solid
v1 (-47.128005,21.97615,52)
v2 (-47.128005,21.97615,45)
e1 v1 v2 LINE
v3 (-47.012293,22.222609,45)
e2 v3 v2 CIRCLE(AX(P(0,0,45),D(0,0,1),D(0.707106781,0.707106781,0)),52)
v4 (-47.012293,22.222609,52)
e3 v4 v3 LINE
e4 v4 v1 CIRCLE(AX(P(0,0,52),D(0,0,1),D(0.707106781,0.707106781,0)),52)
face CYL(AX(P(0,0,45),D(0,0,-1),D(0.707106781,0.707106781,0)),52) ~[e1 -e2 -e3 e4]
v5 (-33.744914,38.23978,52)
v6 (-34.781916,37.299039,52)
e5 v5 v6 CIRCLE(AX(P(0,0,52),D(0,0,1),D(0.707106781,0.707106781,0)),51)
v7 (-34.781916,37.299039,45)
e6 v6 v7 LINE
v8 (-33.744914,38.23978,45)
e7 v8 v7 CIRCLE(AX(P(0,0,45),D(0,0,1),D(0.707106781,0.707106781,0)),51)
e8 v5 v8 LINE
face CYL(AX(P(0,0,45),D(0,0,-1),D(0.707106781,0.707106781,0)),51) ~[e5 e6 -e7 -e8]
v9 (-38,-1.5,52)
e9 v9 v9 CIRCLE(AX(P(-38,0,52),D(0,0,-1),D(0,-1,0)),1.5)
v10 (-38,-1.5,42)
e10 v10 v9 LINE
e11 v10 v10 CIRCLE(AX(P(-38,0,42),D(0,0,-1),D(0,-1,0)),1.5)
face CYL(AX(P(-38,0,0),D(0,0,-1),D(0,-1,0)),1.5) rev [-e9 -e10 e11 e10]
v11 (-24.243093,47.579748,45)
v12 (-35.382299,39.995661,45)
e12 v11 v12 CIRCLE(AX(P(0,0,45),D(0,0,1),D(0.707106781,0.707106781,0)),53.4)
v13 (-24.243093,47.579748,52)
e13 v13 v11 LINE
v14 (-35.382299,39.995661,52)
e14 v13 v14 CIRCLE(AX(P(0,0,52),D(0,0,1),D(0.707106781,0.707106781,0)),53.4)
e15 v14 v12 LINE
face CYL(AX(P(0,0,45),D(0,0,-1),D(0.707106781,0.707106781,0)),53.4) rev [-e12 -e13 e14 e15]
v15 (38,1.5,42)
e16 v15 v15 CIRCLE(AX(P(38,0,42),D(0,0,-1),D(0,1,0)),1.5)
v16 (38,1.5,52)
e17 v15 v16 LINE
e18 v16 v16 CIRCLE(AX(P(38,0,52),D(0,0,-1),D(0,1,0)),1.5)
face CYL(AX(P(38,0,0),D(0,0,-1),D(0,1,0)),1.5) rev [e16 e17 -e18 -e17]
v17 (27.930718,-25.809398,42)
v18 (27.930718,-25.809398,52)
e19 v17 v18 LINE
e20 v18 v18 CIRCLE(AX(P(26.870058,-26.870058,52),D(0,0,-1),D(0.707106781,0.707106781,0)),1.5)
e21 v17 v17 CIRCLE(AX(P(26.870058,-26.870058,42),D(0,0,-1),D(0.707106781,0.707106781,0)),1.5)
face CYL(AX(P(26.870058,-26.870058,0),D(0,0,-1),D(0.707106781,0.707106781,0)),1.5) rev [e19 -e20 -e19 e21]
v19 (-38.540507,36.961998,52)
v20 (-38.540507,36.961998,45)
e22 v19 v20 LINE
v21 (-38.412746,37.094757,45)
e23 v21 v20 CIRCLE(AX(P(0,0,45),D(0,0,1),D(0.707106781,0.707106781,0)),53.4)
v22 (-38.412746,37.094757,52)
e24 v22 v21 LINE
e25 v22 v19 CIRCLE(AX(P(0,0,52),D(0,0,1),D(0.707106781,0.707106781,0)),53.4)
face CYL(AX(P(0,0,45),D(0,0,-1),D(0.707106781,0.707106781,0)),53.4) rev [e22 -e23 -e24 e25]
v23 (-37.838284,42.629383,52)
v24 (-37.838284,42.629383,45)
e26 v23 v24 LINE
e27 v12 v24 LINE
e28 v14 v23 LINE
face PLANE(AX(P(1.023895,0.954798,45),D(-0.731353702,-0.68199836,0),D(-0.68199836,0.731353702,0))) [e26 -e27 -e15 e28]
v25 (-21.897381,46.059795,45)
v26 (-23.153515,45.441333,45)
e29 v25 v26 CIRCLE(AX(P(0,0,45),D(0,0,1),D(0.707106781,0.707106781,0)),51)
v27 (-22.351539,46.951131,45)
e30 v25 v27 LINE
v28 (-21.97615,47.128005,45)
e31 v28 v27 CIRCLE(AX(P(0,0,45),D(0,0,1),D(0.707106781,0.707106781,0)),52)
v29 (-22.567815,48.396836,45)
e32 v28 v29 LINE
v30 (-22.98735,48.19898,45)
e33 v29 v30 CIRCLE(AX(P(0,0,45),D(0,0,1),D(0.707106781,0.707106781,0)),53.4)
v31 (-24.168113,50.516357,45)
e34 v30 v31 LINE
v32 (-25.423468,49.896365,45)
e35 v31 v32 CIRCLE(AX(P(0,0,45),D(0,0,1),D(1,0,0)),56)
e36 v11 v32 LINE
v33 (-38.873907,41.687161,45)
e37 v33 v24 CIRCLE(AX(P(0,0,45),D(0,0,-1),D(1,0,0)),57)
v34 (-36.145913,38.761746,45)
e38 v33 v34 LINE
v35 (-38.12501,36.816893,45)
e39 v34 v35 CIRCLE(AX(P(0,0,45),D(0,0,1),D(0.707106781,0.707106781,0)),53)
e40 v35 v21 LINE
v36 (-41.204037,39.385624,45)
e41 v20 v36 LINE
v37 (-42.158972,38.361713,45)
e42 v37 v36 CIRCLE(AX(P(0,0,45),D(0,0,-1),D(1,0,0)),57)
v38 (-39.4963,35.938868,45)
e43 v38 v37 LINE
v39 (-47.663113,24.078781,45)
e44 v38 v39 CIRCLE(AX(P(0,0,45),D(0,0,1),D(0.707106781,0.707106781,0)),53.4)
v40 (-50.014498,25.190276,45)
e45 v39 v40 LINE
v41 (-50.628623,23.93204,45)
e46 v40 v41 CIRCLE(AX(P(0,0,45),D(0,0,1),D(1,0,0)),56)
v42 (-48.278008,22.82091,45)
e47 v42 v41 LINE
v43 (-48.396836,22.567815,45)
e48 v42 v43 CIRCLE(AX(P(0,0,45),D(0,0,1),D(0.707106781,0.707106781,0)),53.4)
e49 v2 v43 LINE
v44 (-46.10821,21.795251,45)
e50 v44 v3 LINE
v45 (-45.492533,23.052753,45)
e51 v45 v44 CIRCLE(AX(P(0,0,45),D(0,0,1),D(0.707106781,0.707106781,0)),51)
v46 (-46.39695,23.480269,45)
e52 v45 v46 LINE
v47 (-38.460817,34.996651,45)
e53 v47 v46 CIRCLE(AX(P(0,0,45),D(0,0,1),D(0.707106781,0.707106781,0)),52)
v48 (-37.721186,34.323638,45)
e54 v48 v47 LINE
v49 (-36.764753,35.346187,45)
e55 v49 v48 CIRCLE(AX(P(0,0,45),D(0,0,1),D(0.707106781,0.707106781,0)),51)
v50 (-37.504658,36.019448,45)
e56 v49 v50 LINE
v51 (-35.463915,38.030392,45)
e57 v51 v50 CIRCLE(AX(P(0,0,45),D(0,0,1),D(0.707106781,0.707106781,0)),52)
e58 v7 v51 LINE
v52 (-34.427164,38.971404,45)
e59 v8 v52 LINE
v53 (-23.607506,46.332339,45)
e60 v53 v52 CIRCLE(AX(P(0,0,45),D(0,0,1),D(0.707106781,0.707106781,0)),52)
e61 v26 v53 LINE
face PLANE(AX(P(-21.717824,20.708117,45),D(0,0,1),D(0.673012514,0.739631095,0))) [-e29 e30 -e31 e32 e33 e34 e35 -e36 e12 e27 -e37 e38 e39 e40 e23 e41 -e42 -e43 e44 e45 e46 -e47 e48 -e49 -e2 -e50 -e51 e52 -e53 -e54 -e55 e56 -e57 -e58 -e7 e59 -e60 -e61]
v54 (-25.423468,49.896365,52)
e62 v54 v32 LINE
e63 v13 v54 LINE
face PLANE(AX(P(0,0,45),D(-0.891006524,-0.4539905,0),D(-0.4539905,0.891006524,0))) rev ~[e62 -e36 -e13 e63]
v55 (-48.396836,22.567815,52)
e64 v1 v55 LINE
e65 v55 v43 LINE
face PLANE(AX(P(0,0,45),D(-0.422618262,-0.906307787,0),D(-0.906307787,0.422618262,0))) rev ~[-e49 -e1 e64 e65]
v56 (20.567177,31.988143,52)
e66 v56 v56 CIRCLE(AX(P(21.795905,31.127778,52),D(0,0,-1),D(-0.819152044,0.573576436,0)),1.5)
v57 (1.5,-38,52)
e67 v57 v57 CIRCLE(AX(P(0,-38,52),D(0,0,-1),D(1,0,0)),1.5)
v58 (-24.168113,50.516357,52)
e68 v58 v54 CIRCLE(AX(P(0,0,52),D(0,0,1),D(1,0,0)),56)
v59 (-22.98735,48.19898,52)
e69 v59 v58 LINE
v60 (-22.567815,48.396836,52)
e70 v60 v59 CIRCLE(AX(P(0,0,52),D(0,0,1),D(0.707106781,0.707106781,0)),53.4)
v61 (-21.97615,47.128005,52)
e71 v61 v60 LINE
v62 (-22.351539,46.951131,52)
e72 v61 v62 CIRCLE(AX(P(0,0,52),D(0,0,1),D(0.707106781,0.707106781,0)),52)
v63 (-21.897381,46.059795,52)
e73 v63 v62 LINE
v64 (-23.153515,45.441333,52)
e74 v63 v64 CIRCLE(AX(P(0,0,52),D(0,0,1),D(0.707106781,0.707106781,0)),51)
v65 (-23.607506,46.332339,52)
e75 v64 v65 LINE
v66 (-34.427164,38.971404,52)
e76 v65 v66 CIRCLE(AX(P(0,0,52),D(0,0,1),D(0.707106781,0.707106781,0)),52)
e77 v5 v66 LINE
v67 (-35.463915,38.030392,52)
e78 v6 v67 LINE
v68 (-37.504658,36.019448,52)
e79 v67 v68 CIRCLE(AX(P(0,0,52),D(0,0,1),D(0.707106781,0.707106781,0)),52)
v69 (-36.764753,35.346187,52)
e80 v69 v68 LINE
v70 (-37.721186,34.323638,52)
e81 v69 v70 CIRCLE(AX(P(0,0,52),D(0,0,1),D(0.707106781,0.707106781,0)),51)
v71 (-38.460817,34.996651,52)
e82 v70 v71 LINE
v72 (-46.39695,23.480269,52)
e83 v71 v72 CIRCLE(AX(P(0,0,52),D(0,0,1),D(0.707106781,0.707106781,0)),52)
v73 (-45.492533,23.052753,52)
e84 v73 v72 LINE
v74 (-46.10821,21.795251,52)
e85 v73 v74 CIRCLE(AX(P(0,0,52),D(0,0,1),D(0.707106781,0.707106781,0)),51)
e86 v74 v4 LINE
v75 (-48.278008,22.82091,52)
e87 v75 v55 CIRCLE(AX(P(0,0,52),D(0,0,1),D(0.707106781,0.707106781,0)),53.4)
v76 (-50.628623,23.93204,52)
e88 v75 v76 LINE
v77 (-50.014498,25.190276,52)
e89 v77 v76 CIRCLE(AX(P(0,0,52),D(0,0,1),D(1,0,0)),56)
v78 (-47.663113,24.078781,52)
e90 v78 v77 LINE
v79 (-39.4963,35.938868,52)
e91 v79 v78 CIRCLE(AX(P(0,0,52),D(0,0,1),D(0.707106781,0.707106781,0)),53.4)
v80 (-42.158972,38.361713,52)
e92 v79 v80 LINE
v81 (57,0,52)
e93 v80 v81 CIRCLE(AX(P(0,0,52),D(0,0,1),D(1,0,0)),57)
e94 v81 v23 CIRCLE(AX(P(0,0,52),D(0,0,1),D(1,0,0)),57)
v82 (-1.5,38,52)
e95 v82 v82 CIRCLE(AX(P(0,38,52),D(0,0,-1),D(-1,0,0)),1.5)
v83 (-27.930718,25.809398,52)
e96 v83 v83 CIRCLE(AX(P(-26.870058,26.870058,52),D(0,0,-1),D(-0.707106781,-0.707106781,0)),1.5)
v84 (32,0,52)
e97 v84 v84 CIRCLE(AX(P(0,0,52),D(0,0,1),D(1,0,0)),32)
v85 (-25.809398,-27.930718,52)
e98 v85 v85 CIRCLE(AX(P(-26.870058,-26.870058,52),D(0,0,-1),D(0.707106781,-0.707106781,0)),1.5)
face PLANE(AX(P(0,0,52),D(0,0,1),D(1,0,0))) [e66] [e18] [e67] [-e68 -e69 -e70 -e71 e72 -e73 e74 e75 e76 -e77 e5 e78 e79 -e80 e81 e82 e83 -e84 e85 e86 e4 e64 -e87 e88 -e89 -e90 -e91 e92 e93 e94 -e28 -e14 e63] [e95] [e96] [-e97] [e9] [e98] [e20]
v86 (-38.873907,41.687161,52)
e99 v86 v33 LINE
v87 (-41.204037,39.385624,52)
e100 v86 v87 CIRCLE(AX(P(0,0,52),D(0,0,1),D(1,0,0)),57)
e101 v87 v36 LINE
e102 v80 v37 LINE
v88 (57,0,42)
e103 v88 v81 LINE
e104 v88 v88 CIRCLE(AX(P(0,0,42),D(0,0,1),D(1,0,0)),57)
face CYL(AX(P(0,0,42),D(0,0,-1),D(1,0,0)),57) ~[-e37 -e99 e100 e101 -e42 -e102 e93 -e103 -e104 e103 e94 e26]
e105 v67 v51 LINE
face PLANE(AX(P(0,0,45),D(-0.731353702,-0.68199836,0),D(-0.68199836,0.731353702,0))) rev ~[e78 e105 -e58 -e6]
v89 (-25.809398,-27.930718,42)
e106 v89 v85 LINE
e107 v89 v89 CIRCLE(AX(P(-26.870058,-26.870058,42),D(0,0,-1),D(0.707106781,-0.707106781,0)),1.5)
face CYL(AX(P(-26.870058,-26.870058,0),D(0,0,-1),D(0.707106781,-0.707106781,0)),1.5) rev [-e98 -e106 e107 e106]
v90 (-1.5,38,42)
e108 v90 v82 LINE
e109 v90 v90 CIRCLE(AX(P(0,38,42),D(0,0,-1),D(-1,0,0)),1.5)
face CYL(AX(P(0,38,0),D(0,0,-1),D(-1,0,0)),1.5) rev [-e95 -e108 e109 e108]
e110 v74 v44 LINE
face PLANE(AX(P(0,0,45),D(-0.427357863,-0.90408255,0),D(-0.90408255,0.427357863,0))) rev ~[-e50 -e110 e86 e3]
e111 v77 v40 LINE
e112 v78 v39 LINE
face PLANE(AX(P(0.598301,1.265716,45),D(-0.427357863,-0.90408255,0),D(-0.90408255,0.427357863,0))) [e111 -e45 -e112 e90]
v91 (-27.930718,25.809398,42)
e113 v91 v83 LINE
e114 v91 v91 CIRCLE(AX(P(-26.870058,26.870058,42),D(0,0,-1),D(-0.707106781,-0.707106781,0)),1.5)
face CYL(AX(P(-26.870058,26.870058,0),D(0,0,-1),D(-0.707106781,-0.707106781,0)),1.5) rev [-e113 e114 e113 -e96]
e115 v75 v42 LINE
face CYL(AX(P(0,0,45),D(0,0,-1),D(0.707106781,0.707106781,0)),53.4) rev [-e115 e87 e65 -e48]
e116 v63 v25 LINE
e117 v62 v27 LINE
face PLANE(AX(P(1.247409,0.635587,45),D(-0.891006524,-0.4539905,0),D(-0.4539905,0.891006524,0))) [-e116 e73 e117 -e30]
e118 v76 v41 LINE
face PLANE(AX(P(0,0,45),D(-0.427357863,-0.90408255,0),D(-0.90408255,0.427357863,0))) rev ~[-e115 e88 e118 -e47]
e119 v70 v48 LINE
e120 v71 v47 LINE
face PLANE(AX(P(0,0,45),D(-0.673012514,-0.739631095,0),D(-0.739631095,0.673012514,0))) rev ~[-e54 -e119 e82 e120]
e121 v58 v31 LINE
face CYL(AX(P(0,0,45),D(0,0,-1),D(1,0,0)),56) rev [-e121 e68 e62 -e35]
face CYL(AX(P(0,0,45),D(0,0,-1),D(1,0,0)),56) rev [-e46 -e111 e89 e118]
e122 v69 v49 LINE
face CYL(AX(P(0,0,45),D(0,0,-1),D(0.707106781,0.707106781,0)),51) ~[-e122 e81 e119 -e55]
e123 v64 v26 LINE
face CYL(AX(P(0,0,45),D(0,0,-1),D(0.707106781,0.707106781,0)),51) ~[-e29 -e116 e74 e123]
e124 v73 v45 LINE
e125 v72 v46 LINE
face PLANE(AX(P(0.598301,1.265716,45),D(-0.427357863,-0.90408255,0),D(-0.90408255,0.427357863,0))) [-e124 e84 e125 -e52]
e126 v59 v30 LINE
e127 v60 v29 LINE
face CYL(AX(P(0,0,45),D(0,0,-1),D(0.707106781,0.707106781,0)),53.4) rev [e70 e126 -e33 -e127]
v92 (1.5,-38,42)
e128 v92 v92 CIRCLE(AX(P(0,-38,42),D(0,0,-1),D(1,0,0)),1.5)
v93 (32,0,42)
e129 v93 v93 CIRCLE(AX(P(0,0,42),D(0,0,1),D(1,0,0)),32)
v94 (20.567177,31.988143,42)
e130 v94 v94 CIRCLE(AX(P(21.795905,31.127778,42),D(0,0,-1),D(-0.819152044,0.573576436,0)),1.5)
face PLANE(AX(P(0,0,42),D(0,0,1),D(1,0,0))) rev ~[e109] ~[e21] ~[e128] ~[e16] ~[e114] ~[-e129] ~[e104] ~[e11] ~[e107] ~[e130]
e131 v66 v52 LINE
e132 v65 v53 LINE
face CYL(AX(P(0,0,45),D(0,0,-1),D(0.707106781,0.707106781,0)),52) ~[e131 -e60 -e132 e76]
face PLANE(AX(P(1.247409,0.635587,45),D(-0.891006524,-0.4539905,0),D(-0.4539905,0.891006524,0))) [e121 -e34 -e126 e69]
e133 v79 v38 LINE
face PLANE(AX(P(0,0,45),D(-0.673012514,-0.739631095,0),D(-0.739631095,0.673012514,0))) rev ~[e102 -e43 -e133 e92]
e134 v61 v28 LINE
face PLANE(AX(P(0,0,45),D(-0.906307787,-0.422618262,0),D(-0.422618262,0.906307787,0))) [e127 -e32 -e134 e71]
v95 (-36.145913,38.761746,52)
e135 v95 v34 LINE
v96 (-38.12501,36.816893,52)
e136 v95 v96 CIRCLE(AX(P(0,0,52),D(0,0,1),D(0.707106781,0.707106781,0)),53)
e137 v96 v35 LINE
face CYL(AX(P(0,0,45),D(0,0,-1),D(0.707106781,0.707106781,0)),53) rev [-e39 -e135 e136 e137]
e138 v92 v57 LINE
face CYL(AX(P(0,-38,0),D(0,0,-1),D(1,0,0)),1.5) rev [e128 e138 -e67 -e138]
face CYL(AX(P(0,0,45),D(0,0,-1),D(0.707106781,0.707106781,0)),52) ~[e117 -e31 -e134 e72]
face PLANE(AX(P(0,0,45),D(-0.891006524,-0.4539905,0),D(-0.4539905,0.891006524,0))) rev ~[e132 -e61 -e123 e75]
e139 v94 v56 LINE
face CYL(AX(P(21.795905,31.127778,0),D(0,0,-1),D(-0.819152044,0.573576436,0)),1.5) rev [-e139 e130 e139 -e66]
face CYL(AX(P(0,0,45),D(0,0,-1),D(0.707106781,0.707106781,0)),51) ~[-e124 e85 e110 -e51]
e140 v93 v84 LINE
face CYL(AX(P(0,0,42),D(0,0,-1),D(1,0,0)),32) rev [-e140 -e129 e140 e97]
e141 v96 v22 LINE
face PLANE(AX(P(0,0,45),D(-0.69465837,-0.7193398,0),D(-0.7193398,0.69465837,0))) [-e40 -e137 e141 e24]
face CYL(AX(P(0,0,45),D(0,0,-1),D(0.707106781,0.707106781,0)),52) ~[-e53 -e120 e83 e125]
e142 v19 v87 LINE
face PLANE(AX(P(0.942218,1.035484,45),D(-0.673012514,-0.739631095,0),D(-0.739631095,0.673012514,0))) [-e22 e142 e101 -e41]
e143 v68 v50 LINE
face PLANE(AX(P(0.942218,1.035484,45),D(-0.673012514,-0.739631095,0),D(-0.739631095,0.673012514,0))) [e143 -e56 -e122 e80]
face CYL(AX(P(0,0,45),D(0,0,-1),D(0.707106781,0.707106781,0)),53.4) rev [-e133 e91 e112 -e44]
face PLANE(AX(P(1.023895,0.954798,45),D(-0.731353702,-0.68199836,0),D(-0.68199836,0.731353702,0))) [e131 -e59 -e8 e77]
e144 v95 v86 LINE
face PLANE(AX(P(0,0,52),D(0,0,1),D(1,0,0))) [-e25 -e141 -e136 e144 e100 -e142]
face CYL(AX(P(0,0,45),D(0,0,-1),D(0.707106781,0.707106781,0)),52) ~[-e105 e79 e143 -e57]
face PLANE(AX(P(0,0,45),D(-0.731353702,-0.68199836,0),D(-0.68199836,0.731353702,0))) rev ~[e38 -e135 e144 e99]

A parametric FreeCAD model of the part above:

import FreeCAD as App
import Part
import Sketcher

V = App.Vector


def add_polygon(sketch, points):
    """Adds a closed chain of lines whose ends are joined by coincident constraints."""
    first, n = sketch.GeometryCount, len(points)
    for a, b in zip(points, points[1:] + points[:1]):
        sketch.addGeometry(Part.LineSegment(App.Vector(*a, 0), App.Vector(*b, 0)), False)
    for i in range(n):
        sketch.addConstraint(Sketcher.Constraint("Coincident", first + i, 2, first + (i + 1) % n, 1))

doc = App.newDocument("Part")
body = doc.addObject("PartDesign::Body", "Body")

sketch1 = body.newObject("Sketcher::SketchObject", "Sketch")
sketch1.AttachmentSupport = (doc.getObject("XY_Plane"), [""])
sketch1.MapMode = "FlatFace"
sketch1.AttachmentOffset = App.Placement(V(0, 0, 45), App.Rotation())
sketch1.addGeometry(Part.Circle(V(0, 0, 0), V(0, 0, 1), 56), False)
sketch1.addConstraint([
    Sketcher.Constraint("Coincident", 0, 3, -1, 1),
    Sketcher.Constraint("Diameter", 0, 112.0),
])
pad1 = body.newObject("PartDesign::Pad", "Pad")
pad1.Profile = sketch1
pad1.Length = 7
body2 = doc.addObject("PartDesign::Body", "Body001")

sketch2 = body2.newObject("Sketcher::SketchObject", "Sketch001")
sketch2.AttachmentSupport = (doc.getObject("XY_Plane001"), [""])
sketch2.MapMode = "FlatFace"
sketch2.AttachmentOffset = App.Placement(V(0, 0, -22), App.Rotation())
sketch2.addGeometry(Part.Circle(V(0, 0, 0), V(0, 0, 1), 51), False)
sketch2.addConstraint([
    Sketcher.Constraint("Coincident", 0, 3, -1, 1),
    Sketcher.Constraint("Diameter", 0, 102.0),
])
pad2 = body2.newObject("PartDesign::Pad", "Pad001")
pad2.Profile = sketch2
pad2.Length = 7
body3 = doc.addObject("PartDesign::Body", "Body002")

sketch3 = body3.newObject("Sketcher::SketchObject", "Sketch002")
sketch3.AttachmentSupport = (doc.getObject("XY_Plane002"), [""])
sketch3.MapMode = "FlatFace"
add_polygon(sketch3, [(0, 60), (0, 0), (1.4, 0), (1.4, 60)])
sketch3.addConstraint([
    Sketcher.Constraint("Vertical", 0),
    Sketcher.Constraint("Horizontal", 1),
    Sketcher.Constraint("Vertical", 2),
    Sketcher.Constraint("Horizontal", 3),
    Sketcher.Constraint("Coincident", 0, 2, -1, 1),
    Sketcher.Constraint("DistanceY", 0, 2, 0, 1, 60.0),
    Sketcher.Constraint("DistanceX", 1, 1, 1, 2, 1.4),
])
pad3 = body3.newObject("PartDesign::Pad", "Pad002")
pad3.Profile = sketch3
pad3.Length = 7
body4 = doc.addObject("PartDesign::Body", "Body003")
doc.recompute()

body3.Placement = App.Placement(V(0, 0, -22), App.Rotation(V(0, 0, 1), 19.7))
boolean = body4.newObject("PartDesign::Boolean", "Boolean")
boolean.Type = "Fuse"
boolean.addObjects([body3])
body5 = doc.addObject("PartDesign::Body", "Body004")

sketch4 = body5.newObject("Sketcher::SketchObject", "Sketch003")
sketch4.AttachmentSupport = (doc.getObject("XY_Plane004"), [""])
sketch4.MapMode = "FlatFace"
add_polygon(sketch4, [(0, 60), (0, 0), (1.4, 0), (1.4, 60)])
sketch4.addConstraint([
    Sketcher.Constraint("Vertical", 0),
    Sketcher.Constraint("Horizontal", 1),
    Sketcher.Constraint("Vertical", 2),
    Sketcher.Constraint("Horizontal", 3),
    Sketcher.Constraint("Coincident", 0, 2, -1, 1),
    Sketcher.Constraint("DistanceY", 0, 2, 0, 1, 60.0),
    Sketcher.Constraint("DistanceX", 1, 1, 1, 2, 1.4),
])
pad4 = body5.newObject("PartDesign::Pad", "Pad003")
pad4.Profile = sketch4
pad4.Length = 7
body6 = doc.addObject("PartDesign::Body", "Body005")
body6.AllowCompound = True
doc.recompute()

body5.Placement = App.Placement(V(0, 0, -22), App.Rotation(V(0, 0, -1), 18))
boolean2 = body6.newObject("PartDesign::Boolean", "Boolean001")
boolean2.Type = "Fuse"
boolean2.addObjects([body5])
doc.recompute()

boolean3 = body6.newObject("PartDesign::Boolean", "Boolean002")
boolean3.Type = "Fuse"
boolean3.addObjects([body4])
doc.recompute()

boolean4 = body6.newObject("PartDesign::Boolean", "Boolean003")
boolean4.Type = "Cut"
boolean4.addObjects([body2])
body7 = doc.addObject("PartDesign::Body", "Body006")
body7.AllowCompound = True
doc.recompute()

body6.Placement = App.Placement(V(0, 0, 67), App.Rotation(V(0, 0, 1), 45))
boolean5 = body7.newObject("PartDesign::Boolean", "Boolean004")
boolean5.Type = "Fuse"
boolean5.addObjects([body6])
doc.recompute()

boolean6 = body7.newObject("PartDesign::Boolean", "Boolean005")
boolean6.Type = "Common"
boolean6.addObjects([body])
body8 = doc.addObject("PartDesign::Body", "Body007")

sketch5 = body8.newObject("Sketcher::SketchObject", "Sketch004")
sketch5.AttachmentSupport = (doc.getObject("XY_Plane007"), [""])
sketch5.MapMode = "FlatFace"
add_polygon(sketch5, [(0, 60), (0, 0), (60, 0), (60, 60)])
sketch5.addConstraint([
    Sketcher.Constraint("Vertical", 0),
    Sketcher.Constraint("Horizontal", 1),
    Sketcher.Constraint("Vertical", 2),
    Sketcher.Constraint("Horizontal", 3),
    Sketcher.Constraint("Coincident", 0, 2, -1, 1),
    Sketcher.Constraint("Equal", 3, 0),
    Sketcher.Constraint("DistanceX", 1, 1, 1, 2, 60.0),
])
pad5 = body8.newObject("PartDesign::Pad", "Pad004")
pad5.Profile = sketch5
pad5.Length = 7
body9 = doc.addObject("PartDesign::Body", "Body008")
doc.recompute()

body8.Placement = App.Placement(V(-59.990862, -1.047144, -22), App.Rotation(V(0, 0, 1), 1))
boolean7 = body9.newObject("PartDesign::Boolean", "Boolean006")
boolean7.Type = "Fuse"
boolean7.addObjects([body8])
body10 = doc.addObject("PartDesign::Body", "Body009")

sketch6 = body10.newObject("Sketcher::SketchObject", "Sketch005")
sketch6.AttachmentSupport = (doc.getObject("XY_Plane009"), [""])
sketch6.MapMode = "FlatFace"
add_polygon(sketch6, [(0, 60), (0, 0), (60, 0), (60, 60)])
sketch6.addConstraint([
    Sketcher.Constraint("Vertical", 0),
    Sketcher.Constraint("Horizontal", 1),
    Sketcher.Constraint("Vertical", 2),
    Sketcher.Constraint("Horizontal", 3),
    Sketcher.Constraint("Coincident", 0, 2, -1, 1),
    Sketcher.Constraint("Equal", 3, 0),
    Sketcher.Constraint("DistanceX", 1, 1, 1, 2, 60.0),
])
pad6 = body10.newObject("PartDesign::Pad", "Pad005")
pad6.Profile = sketch6
pad6.Length = 7
body11 = doc.addObject("PartDesign::Body", "Body010")
body11.AllowCompound = True
doc.recompute()

body10.Placement = App.Placement(V(0, 0, -22), App.Rotation(V(0, 0, -1), 2))
boolean8 = body11.newObject("PartDesign::Boolean", "Boolean007")
boolean8.Type = "Fuse"
boolean8.addObjects([body10])
doc.recompute()

boolean9 = body11.newObject("PartDesign::Boolean", "Boolean008")
boolean9.Type = "Fuse"
boolean9.addObjects([body9])
body12 = doc.addObject("PartDesign::Body", "Body011")

sketch7 = body12.newObject("Sketcher::SketchObject", "Sketch006")
sketch7.AttachmentSupport = (doc.getObject("XY_Plane011"), [""])
sketch7.MapMode = "FlatFace"
sketch7.AttachmentOffset = App.Placement(V(0, 0, -22), App.Rotation())
add_polygon(sketch7, [(-60, 0), (-60, -60), (60, -60), (60, 0)])
sketch7.addConstraint([
    Sketcher.Constraint("Vertical", 0),
    Sketcher.Constraint("Horizontal", 1),
    Sketcher.Constraint("Vertical", 2),
    Sketcher.Constraint("Horizontal", 3),
    Sketcher.Constraint("Symmetric", 2, 2, 3, 2, -1, 1),
    Sketcher.Constraint("DistanceX", 1, 1, 1, 2, 120.0),
    Sketcher.Constraint("DistanceY", 0, 2, 0, 1, 60.0),
])
pad7 = body12.newObject("PartDesign::Pad", "Pad006")
pad7.Profile = sketch7
pad7.Length = 7
body13 = doc.addObject("PartDesign::Body", "Body012")

sketch8 = body13.newObject("Sketcher::SketchObject", "Sketch007")
sketch8.AttachmentSupport = (doc.getObject("XY_Plane012"), [""])
sketch8.MapMode = "FlatFace"
sketch8.AttachmentOffset = App.Placement(V(0, 0, -22), App.Rotation())
sketch8.addGeometry([
    Part.Circle(V(0, 0, 0), V(0, 0, 1), 54),
    Part.Circle(V(0, 0, 0), V(0, 0, 1), 53),
], False)
sketch8.addConstraint([
    Sketcher.Constraint("Coincident", 0, 3, -1, 1),
    Sketcher.Constraint("Coincident", 1, 3, -1, 1),
    Sketcher.Constraint("Diameter", 1, 106.0),
    Sketcher.Constraint("Diameter", 0, 108.8),
])
pad8 = body13.newObject("PartDesign::Pad", "Pad007")
pad8.Profile = sketch8
pad8.Length = 7
doc.recompute()

boolean10 = body13.newObject("PartDesign::Boolean", "Boolean009")
boolean10.Type = "Cut"
boolean10.addObjects([body12])
doc.recompute()

boolean11 = body13.newObject("PartDesign::Boolean", "Boolean010")
boolean11.Type = "Cut"
boolean11.addObjects([body11])
body14 = doc.addObject("PartDesign::Body", "Body013")
doc.recompute()

body13.Placement = App.Placement(V(0, 0, -7), App.Rotation(V(0, 0, 1), 0))
boolean12 = body14.newObject("PartDesign::Boolean", "Boolean011")
boolean12.Type = "Fuse"
boolean12.addObjects([body13])
body15 = doc.addObject("PartDesign::Body", "Body014")

sketch9 = body15.newObject("Sketcher::SketchObject", "Sketch008")
sketch9.AttachmentSupport = (doc.getObject("XY_Plane014"), [""])
sketch9.MapMode = "FlatFace"
add_polygon(sketch9, [(0, 60), (0, 0), (60, 0), (60, 60)])
sketch9.addConstraint([
    Sketcher.Constraint("Vertical", 0),
    Sketcher.Constraint("Horizontal", 1),
    Sketcher.Constraint("Vertical", 2),
    Sketcher.Constraint("Horizontal", 3),
    Sketcher.Constraint("Coincident", 0, 2, -1, 1),
    Sketcher.Constraint("Equal", 3, 0),
    Sketcher.Constraint("DistanceX", 1, 1, 1, 2, 60.0),
])
pad9 = body15.newObject("PartDesign::Pad", "Pad008")
pad9.Profile = sketch9
pad9.Length = 7
body16 = doc.addObject("PartDesign::Body", "Body015")
doc.recompute()

body15.Placement = App.Placement(V(-56.381557, -20.521209, -22), App.Rotation(V(0, 0, 1), 20))
boolean13 = body16.newObject("PartDesign::Boolean", "Boolean012")
boolean13.Type = "Fuse"
boolean13.addObjects([body15])
body17 = doc.addObject("PartDesign::Body", "Body016")

sketch10 = body17.newObject("Sketcher::SketchObject", "Sketch009")
sketch10.AttachmentSupport = (doc.getObject("XY_Plane016"), [""])
sketch10.MapMode = "FlatFace"
add_polygon(sketch10, [(0, 60), (0, 0), (60, 0), (60, 60)])
sketch10.addConstraint([
    Sketcher.Constraint("Vertical", 0),
    Sketcher.Constraint("Horizontal", 1),
    Sketcher.Constraint("Vertical", 2),
    Sketcher.Constraint("Horizontal", 3),
    Sketcher.Constraint("Coincident", 0, 2, -1, 1),
    Sketcher.Constraint("Equal", 3, 0),
    Sketcher.Constraint("DistanceX", 1, 1, 1, 2, 60.0),
])
pad10 = body17.newObject("PartDesign::Pad", "Pad009")
pad10.Profile = sketch10
pad10.Length = 7
body18 = doc.addObject("PartDesign::Body", "Body017")
body18.AllowCompound = True
doc.recompute()

body17.Placement = App.Placement(V(0, 0, -22), App.Rotation(V(0, 0, -1), 20))
boolean14 = body18.newObject("PartDesign::Boolean", "Boolean013")
boolean14.Type = "Fuse"
boolean14.addObjects([body17])
doc.recompute()

boolean15 = body18.newObject("PartDesign::Boolean", "Boolean014")
boolean15.Type = "Fuse"
boolean15.addObjects([body16])
body19 = doc.addObject("PartDesign::Body", "Body018")

sketch11 = body19.newObject("Sketcher::SketchObject", "Sketch010")
sketch11.AttachmentSupport = (doc.getObject("XY_Plane018"), [""])
sketch11.MapMode = "FlatFace"
sketch11.AttachmentOffset = App.Placement(V(0, 0, -22), App.Rotation())
add_polygon(sketch11, [(-60, 0), (-60, -60), (60, -60), (60, 0)])
sketch11.addConstraint([
    Sketcher.Constraint("Vertical", 0),
    Sketcher.Constraint("Horizontal", 1),
    Sketcher.Constraint("Vertical", 2),
    Sketcher.Constraint("Horizontal", 3),
    Sketcher.Constraint("Symmetric", 2, 2, 3, 2, -1, 1),
    Sketcher.Constraint("DistanceX", 1, 1, 1, 2, 120.0),
    Sketcher.Constraint("DistanceY", 0, 2, 0, 1, 60.0),
])
pad11 = body19.newObject("PartDesign::Pad", "Pad010")
pad11.Profile = sketch11
pad11.Length = 7
body20 = doc.addObject("PartDesign::Body", "Body019")

sketch12 = body20.newObject("Sketcher::SketchObject", "Sketch011")
sketch12.AttachmentSupport = (doc.getObject("XY_Plane019"), [""])
sketch12.MapMode = "FlatFace"
sketch12.AttachmentOffset = App.Placement(V(0, 0, -22), App.Rotation())
sketch12.addGeometry([
    Part.Circle(V(0, 0, 0), V(0, 0, 1), 53),
    Part.Circle(V(0, 0, 0), V(0, 0, 1), 52),
], False)
sketch12.addConstraint([
    Sketcher.Constraint("Coincident", 0, 3, -1, 1),
    Sketcher.Constraint("Coincident", 1, 3, -1, 1),
    Sketcher.Constraint("Diameter", 1, 104.0),
    Sketcher.Constraint("Diameter", 0, 106.8),
])
pad12 = body20.newObject("PartDesign::Pad", "Pad011")
pad12.Profile = sketch12
pad12.Length = 7
doc.recompute()

boolean16 = body20.newObject("PartDesign::Boolean", "Boolean015")
boolean16.Type = "Cut"
boolean16.addObjects([body19])
doc.recompute()

boolean17 = body20.newObject("PartDesign::Boolean", "Boolean016")
boolean17.Type = "Cut"
boolean17.addObjects([body18])
body21 = doc.addObject("PartDesign::Body", "Body020")
doc.recompute()

body20.Placement = App.Placement(V(0, 0, -7), App.Rotation(V(0, 0, 1), 0))
boolean18 = body21.newObject("PartDesign::Boolean", "Boolean017")
boolean18.Type = "Fuse"
boolean18.addObjects([body20])
doc.recompute()

boolean19 = body21.newObject("PartDesign::Boolean", "Boolean018")
boolean19.Type = "Cut"
boolean19.addObjects([body14])
body22 = doc.addObject("PartDesign::Body", "Body021")
doc.recompute()

body21.Placement = App.Placement(V(0, 0, 74), App.Rotation(V(0, 0, 1), 45))
boolean20 = body22.newObject("PartDesign::Boolean", "Boolean019")
boolean20.Type = "Fuse"
boolean20.addObjects([body21])
body23 = doc.addObject("PartDesign::Body", "Body022")

sketch13 = body23.newObject("Sketcher::SketchObject", "Sketch012")
sketch13.AttachmentSupport = (doc.getObject("XY_Plane022"), [""])
sketch13.MapMode = "FlatFace"
sketch13.AttachmentOffset = App.Placement(V(0, 0, -22), App.Rotation())
sketch13.addGeometry(Part.Circle(V(0, 0, 0), V(0, 0, 1), 51), False)
sketch13.addConstraint([
    Sketcher.Constraint("Coincident", 0, 3, -1, 1),
    Sketcher.Constraint("Diameter", 0, 102.0),
])
pad13 = body23.newObject("PartDesign::Pad", "Pad012")
pad13.Profile = sketch13
pad13.Length = 7
body24 = doc.addObject("PartDesign::Body", "Body023")

sketch14 = body24.newObject("Sketcher::SketchObject", "Sketch013")
sketch14.AttachmentSupport = (doc.getObject("XY_Plane023"), [""])
sketch14.MapMode = "FlatFace"
add_polygon(sketch14, [(0, 60), (0, 0), (1.4, 0), (1.4, 60)])
sketch14.addConstraint([
    Sketcher.Constraint("Vertical", 0),
    Sketcher.Constraint("Horizontal", 1),
    Sketcher.Constraint("Vertical", 2),
    Sketcher.Constraint("Horizontal", 3),
    Sketcher.Constraint("Coincident", 0, 2, -1, 1),
    Sketcher.Constraint("DistanceY", 0, 2, 0, 1, 60.0),
    Sketcher.Constraint("DistanceX", 1, 1, 1, 2, 1.4),
])
pad14 = body24.newObject("PartDesign::Pad", "Pad013")
pad14.Profile = sketch14
pad14.Length = 7
body25 = doc.addObject("PartDesign::Body", "Body024")
doc.recompute()

body24.Placement = App.Placement(V(0, 0, -22), App.Rotation(V(0, 0, 1), 2.7))
boolean21 = body25.newObject("PartDesign::Boolean", "Boolean020")
boolean21.Type = "Fuse"
boolean21.addObjects([body24])
body26 = doc.addObject("PartDesign::Body", "Body025")

sketch15 = body26.newObject("Sketcher::SketchObject", "Sketch014")
sketch15.AttachmentSupport = (doc.getObject("XY_Plane025"), [""])
sketch15.MapMode = "FlatFace"
add_polygon(sketch15, [(0, 60), (0, 0), (1.4, 0), (1.4, 60)])
sketch15.addConstraint([
    Sketcher.Constraint("Vertical", 0),
    Sketcher.Constraint("Horizontal", 1),
    Sketcher.Constraint("Vertical", 2),
    Sketcher.Constraint("Horizontal", 3),
    Sketcher.Constraint("Coincident", 0, 2, -1, 1),
    Sketcher.Constraint("DistanceY", 0, 2, 0, 1, 60.0),
    Sketcher.Constraint("DistanceX", 1, 1, 1, 2, 1.4),
])
pad15 = body26.newObject("PartDesign::Pad", "Pad014")
pad15.Profile = sketch15
pad15.Length = 7
body27 = doc.addObject("PartDesign::Body", "Body026")
body27.AllowCompound = True
doc.recompute()

body26.Placement = App.Placement(V(0, 0, -22), App.Rotation(V(0, 0, -1), 2))
boolean22 = body27.newObject("PartDesign::Boolean", "Boolean021")
boolean22.Type = "Fuse"
boolean22.addObjects([body26])
doc.recompute()

boolean23 = body27.newObject("PartDesign::Boolean", "Boolean022")
boolean23.Type = "Fuse"
boolean23.addObjects([body25])
doc.recompute()

boolean24 = body27.newObject("PartDesign::Boolean", "Boolean023")
boolean24.Type = "Cut"
boolean24.addObjects([body23])
body28 = doc.addObject("PartDesign::Body", "Body027")
body28.AllowCompound = True
doc.recompute()

body27.Placement = App.Placement(V(0, 0, 67), App.Rotation(V(0, 0, 1), 45))
boolean25 = body28.newObject("PartDesign::Boolean", "Boolean024")
boolean25.Type = "Fuse"
boolean25.addObjects([body27])
body29 = doc.addObject("PartDesign::Body", "Body028")

sketch16 = body29.newObject("Sketcher::SketchObject", "Sketch015")
sketch16.AttachmentSupport = (doc.getObject("XY_Plane028"), [""])
sketch16.MapMode = "FlatFace"
sketch16.addGeometry(Part.Circle(V(38, 0, 0), V(0, 0, 1), 1.5), False)
sketch16.addConstraint([
    Sketcher.Constraint("PointOnObject", 0, 3, -1),
    Sketcher.Constraint("Diameter", 0, 3.0),
    Sketcher.Constraint("DistanceX", -1, 1, 0, 3, 38.0),
])
pad16 = body29.newObject("PartDesign::Pad", "Pad015")
pad16.Profile = sketch16
pad16.Length = 100
body30 = doc.addObject("PartDesign::Body", "Body029")

sketch17 = body30.newObject("Sketcher::SketchObject", "Sketch016")
sketch17.AttachmentSupport = (doc.getObject("XY_Plane029"), [""])
sketch17.MapMode = "FlatFace"
sketch17.addGeometry(Part.Circle(V(0, 0, 0), V(0, 0, 1), 1.5), False)
sketch17.addConstraint([
    Sketcher.Constraint("Coincident", 0, 3, -1, 1),
    Sketcher.Constraint("Diameter", 0, 3.0),
])
pad17 = body30.newObject("PartDesign::Pad", "Pad016")
pad17.Profile = sketch17
pad17.Length = 100
body31 = doc.addObject("PartDesign::Body", "Body030")
doc.recompute()

body30.Placement = App.Placement(V(21.795905, 31.127778, 0), App.Rotation(V(0, 0, 1), 145))
boolean26 = body31.newObject("PartDesign::Boolean", "Boolean025")
boolean26.Type = "Fuse"
boolean26.addObjects([body30])
body32 = doc.addObject("PartDesign::Body", "Body031")

sketch18 = body32.newObject("Sketcher::SketchObject", "Sketch017")
sketch18.AttachmentSupport = (doc.getObject("XY_Plane031"), [""])
sketch18.MapMode = "FlatFace"
sketch18.addGeometry(Part.Circle(V(0, 38, 0), V(0, 0, 1), 1.5), False)
sketch18.addConstraint([
    Sketcher.Constraint("PointOnObject", 0, 3, -2),
    Sketcher.Constraint("Diameter", 0, 3.0),
    Sketcher.Constraint("DistanceY", -1, 1, 0, 3, 38.0),
])
pad18 = body32.newObject("PartDesign::Pad", "Pad017")
pad18.Profile = sketch18
pad18.Length = 100
body33 = doc.addObject("PartDesign::Body", "Body032")

sketch19 = body33.newObject("Sketcher::SketchObject", "Sketch018")
sketch19.AttachmentSupport = (doc.getObject("XY_Plane032"), [""])
sketch19.MapMode = "FlatFace"
sketch19.addGeometry(Part.Circle(V(0, 0, 0), V(0, 0, 1), 1.5), False)
sketch19.addConstraint([
    Sketcher.Constraint("Coincident", 0, 3, -1, 1),
    Sketcher.Constraint("Diameter", 0, 3.0),
])
pad19 = body33.newObject("PartDesign::Pad", "Pad018")
pad19.Profile = sketch19
pad19.Length = 100
body34 = doc.addObject("PartDesign::Body", "Body033")
doc.recompute()

body33.Placement = App.Placement(V(-26.870058, 26.870058, 0), App.Rotation(V(0, 0, 1), 225))
boolean27 = body34.newObject("PartDesign::Boolean", "Boolean026")
boolean27.Type = "Fuse"
boolean27.addObjects([body33])
body35 = doc.addObject("PartDesign::Body", "Body034")

sketch20 = body35.newObject("Sketcher::SketchObject", "Sketch019")
sketch20.AttachmentSupport = (doc.getObject("XY_Plane034"), [""])
sketch20.MapMode = "FlatFace"
sketch20.addGeometry(Part.Circle(V(-38, 0, 0), V(0, 0, 1), 1.5), False)
sketch20.addConstraint([
    Sketcher.Constraint("PointOnObject", 0, 3, -1),
    Sketcher.Constraint("Diameter", 0, 3.0),
    Sketcher.Constraint("DistanceX", 0, 3, -1, 1, 38.0),
])
pad20 = body35.newObject("PartDesign::Pad", "Pad019")
pad20.Profile = sketch20
pad20.Length = 100
body36 = doc.addObject("PartDesign::Body", "Body035")

sketch21 = body36.newObject("Sketcher::SketchObject", "Sketch020")
sketch21.AttachmentSupport = (doc.getObject("XY_Plane035"), [""])
sketch21.MapMode = "FlatFace"
sketch21.addGeometry(Part.Circle(V(0, 0, 0), V(0, 0, 1), 1.5), False)
sketch21.addConstraint([
    Sketcher.Constraint("Coincident", 0, 3, -1, 1),
    Sketcher.Constraint("Diameter", 0, 3.0),
])
pad21 = body36.newObject("PartDesign::Pad", "Pad020")
pad21.Profile = sketch21
pad21.Length = 100
body37 = doc.addObject("PartDesign::Body", "Body036")
doc.recompute()

body36.Placement = App.Placement(V(-26.870058, -26.870058, 0), App.Rotation(V(0, 0, -1), 45))
boolean28 = body37.newObject("PartDesign::Boolean", "Boolean027")
boolean28.Type = "Fuse"
boolean28.addObjects([body36])
body38 = doc.addObject("PartDesign::Body", "Body037")

sketch22 = body38.newObject("Sketcher::SketchObject", "Sketch021")
sketch22.AttachmentSupport = (doc.getObject("XY_Plane037"), [""])
sketch22.MapMode = "FlatFace"
sketch22.addGeometry(Part.Circle(V(0, -38, 0), V(0, 0, 1), 1.5), False)
sketch22.addConstraint([
    Sketcher.Constraint("PointOnObject", 0, 3, -2),
    Sketcher.Constraint("Diameter", 0, 3.0),
    Sketcher.Constraint("DistanceY", 0, 3, -1, 1, 38.0),
])
pad22 = body38.newObject("PartDesign::Pad", "Pad021")
pad22.Profile = sketch22
pad22.Length = 100
body39 = doc.addObject("PartDesign::Body", "Body038")

sketch23 = body39.newObject("Sketcher::SketchObject", "Sketch022")
sketch23.AttachmentSupport = (doc.getObject("XY_Plane038"), [""])
sketch23.MapMode = "FlatFace"
sketch23.addGeometry(Part.Circle(V(0, 0, 0), V(0, 0, 1), 1.5), False)
sketch23.addConstraint([
    Sketcher.Constraint("Coincident", 0, 3, -1, 1),
    Sketcher.Constraint("Diameter", 0, 3.0),
])
pad23 = body39.newObject("PartDesign::Pad", "Pad022")
pad23.Profile = sketch23
pad23.Length = 100
body40 = doc.addObject("PartDesign::Body", "Body039")
body40.AllowCompound = True
doc.recompute()

body39.Placement = App.Placement(V(26.870058, -26.870058, 0), App.Rotation(V(0, 0, 1), 45))
boolean29 = body40.newObject("PartDesign::Boolean", "Boolean028")
boolean29.Type = "Fuse"
boolean29.addObjects([body39])
doc.recompute()

boolean30 = body40.newObject("PartDesign::Boolean", "Boolean029")
boolean30.Type = "Fuse"
boolean30.addObjects([body29])
doc.recompute()

boolean31 = body40.newObject("PartDesign::Boolean", "Boolean030")
boolean31.Type = "Fuse"
boolean31.addObjects([body31])
doc.recompute()

boolean32 = body40.newObject("PartDesign::Boolean", "Boolean031")
boolean32.Type = "Fuse"
boolean32.addObjects([body32])
doc.recompute()

boolean33 = body40.newObject("PartDesign::Boolean", "Boolean032")
boolean33.Type = "Fuse"
boolean33.addObjects([body34])
doc.recompute()

boolean34 = body40.newObject("PartDesign::Boolean", "Boolean033")
boolean34.Type = "Fuse"
boolean34.addObjects([body35])
doc.recompute()

boolean35 = body40.newObject("PartDesign::Boolean", "Boolean034")
boolean35.Type = "Fuse"
boolean35.addObjects([body37])
doc.recompute()

boolean36 = body40.newObject("PartDesign::Boolean", "Boolean035")
boolean36.Type = "Fuse"
boolean36.addObjects([body38])
body41 = doc.addObject("PartDesign::Body", "Body040")

sketch24 = body41.newObject("Sketcher::SketchObject", "Sketch023")
sketch24.AttachmentSupport = (doc.getObject("XY_Plane040"), [""])
sketch24.MapMode = "FlatFace"
sketch24.AttachmentOffset = App.Placement(V(0, 0, 42), App.Rotation())
sketch24.addGeometry([
    Part.Circle(V(0, 0, 0), V(0, 0, 1), 57),
    Part.Circle(V(0, 0, 0), V(0, 0, 1), 32),
], False)
sketch24.addConstraint([
    Sketcher.Constraint("Coincident", 0, 3, -1, 1),
    Sketcher.Constraint("Coincident", 1, 3, -1, 1),
    Sketcher.Constraint("Diameter", 0, 114.0),
    Sketcher.Constraint("Diameter", 1, 64.0),
])
pad24 = body41.newObject("PartDesign::Pad", "Pad023")
pad24.Profile = sketch24
pad24.Length = 10
doc.recompute()

boolean37 = body41.newObject("PartDesign::Boolean", "Boolean036")
boolean37.Type = "Cut"
boolean37.addObjects([body40])
doc.recompute()

boolean38 = body41.newObject("PartDesign::Boolean", "Boolean037")
boolean38.Type = "Cut"
boolean38.addObjects([body28])
doc.recompute()

boolean39 = body41.newObject("PartDesign::Boolean", "Boolean038")
boolean39.Type = "Cut"
boolean39.addObjects([body22])
doc.recompute()

boolean40 = body41.newObject("PartDesign::Boolean", "Boolean039")
boolean40.Type = "Cut"
boolean40.addObjects([body7])

doc.recompute()
